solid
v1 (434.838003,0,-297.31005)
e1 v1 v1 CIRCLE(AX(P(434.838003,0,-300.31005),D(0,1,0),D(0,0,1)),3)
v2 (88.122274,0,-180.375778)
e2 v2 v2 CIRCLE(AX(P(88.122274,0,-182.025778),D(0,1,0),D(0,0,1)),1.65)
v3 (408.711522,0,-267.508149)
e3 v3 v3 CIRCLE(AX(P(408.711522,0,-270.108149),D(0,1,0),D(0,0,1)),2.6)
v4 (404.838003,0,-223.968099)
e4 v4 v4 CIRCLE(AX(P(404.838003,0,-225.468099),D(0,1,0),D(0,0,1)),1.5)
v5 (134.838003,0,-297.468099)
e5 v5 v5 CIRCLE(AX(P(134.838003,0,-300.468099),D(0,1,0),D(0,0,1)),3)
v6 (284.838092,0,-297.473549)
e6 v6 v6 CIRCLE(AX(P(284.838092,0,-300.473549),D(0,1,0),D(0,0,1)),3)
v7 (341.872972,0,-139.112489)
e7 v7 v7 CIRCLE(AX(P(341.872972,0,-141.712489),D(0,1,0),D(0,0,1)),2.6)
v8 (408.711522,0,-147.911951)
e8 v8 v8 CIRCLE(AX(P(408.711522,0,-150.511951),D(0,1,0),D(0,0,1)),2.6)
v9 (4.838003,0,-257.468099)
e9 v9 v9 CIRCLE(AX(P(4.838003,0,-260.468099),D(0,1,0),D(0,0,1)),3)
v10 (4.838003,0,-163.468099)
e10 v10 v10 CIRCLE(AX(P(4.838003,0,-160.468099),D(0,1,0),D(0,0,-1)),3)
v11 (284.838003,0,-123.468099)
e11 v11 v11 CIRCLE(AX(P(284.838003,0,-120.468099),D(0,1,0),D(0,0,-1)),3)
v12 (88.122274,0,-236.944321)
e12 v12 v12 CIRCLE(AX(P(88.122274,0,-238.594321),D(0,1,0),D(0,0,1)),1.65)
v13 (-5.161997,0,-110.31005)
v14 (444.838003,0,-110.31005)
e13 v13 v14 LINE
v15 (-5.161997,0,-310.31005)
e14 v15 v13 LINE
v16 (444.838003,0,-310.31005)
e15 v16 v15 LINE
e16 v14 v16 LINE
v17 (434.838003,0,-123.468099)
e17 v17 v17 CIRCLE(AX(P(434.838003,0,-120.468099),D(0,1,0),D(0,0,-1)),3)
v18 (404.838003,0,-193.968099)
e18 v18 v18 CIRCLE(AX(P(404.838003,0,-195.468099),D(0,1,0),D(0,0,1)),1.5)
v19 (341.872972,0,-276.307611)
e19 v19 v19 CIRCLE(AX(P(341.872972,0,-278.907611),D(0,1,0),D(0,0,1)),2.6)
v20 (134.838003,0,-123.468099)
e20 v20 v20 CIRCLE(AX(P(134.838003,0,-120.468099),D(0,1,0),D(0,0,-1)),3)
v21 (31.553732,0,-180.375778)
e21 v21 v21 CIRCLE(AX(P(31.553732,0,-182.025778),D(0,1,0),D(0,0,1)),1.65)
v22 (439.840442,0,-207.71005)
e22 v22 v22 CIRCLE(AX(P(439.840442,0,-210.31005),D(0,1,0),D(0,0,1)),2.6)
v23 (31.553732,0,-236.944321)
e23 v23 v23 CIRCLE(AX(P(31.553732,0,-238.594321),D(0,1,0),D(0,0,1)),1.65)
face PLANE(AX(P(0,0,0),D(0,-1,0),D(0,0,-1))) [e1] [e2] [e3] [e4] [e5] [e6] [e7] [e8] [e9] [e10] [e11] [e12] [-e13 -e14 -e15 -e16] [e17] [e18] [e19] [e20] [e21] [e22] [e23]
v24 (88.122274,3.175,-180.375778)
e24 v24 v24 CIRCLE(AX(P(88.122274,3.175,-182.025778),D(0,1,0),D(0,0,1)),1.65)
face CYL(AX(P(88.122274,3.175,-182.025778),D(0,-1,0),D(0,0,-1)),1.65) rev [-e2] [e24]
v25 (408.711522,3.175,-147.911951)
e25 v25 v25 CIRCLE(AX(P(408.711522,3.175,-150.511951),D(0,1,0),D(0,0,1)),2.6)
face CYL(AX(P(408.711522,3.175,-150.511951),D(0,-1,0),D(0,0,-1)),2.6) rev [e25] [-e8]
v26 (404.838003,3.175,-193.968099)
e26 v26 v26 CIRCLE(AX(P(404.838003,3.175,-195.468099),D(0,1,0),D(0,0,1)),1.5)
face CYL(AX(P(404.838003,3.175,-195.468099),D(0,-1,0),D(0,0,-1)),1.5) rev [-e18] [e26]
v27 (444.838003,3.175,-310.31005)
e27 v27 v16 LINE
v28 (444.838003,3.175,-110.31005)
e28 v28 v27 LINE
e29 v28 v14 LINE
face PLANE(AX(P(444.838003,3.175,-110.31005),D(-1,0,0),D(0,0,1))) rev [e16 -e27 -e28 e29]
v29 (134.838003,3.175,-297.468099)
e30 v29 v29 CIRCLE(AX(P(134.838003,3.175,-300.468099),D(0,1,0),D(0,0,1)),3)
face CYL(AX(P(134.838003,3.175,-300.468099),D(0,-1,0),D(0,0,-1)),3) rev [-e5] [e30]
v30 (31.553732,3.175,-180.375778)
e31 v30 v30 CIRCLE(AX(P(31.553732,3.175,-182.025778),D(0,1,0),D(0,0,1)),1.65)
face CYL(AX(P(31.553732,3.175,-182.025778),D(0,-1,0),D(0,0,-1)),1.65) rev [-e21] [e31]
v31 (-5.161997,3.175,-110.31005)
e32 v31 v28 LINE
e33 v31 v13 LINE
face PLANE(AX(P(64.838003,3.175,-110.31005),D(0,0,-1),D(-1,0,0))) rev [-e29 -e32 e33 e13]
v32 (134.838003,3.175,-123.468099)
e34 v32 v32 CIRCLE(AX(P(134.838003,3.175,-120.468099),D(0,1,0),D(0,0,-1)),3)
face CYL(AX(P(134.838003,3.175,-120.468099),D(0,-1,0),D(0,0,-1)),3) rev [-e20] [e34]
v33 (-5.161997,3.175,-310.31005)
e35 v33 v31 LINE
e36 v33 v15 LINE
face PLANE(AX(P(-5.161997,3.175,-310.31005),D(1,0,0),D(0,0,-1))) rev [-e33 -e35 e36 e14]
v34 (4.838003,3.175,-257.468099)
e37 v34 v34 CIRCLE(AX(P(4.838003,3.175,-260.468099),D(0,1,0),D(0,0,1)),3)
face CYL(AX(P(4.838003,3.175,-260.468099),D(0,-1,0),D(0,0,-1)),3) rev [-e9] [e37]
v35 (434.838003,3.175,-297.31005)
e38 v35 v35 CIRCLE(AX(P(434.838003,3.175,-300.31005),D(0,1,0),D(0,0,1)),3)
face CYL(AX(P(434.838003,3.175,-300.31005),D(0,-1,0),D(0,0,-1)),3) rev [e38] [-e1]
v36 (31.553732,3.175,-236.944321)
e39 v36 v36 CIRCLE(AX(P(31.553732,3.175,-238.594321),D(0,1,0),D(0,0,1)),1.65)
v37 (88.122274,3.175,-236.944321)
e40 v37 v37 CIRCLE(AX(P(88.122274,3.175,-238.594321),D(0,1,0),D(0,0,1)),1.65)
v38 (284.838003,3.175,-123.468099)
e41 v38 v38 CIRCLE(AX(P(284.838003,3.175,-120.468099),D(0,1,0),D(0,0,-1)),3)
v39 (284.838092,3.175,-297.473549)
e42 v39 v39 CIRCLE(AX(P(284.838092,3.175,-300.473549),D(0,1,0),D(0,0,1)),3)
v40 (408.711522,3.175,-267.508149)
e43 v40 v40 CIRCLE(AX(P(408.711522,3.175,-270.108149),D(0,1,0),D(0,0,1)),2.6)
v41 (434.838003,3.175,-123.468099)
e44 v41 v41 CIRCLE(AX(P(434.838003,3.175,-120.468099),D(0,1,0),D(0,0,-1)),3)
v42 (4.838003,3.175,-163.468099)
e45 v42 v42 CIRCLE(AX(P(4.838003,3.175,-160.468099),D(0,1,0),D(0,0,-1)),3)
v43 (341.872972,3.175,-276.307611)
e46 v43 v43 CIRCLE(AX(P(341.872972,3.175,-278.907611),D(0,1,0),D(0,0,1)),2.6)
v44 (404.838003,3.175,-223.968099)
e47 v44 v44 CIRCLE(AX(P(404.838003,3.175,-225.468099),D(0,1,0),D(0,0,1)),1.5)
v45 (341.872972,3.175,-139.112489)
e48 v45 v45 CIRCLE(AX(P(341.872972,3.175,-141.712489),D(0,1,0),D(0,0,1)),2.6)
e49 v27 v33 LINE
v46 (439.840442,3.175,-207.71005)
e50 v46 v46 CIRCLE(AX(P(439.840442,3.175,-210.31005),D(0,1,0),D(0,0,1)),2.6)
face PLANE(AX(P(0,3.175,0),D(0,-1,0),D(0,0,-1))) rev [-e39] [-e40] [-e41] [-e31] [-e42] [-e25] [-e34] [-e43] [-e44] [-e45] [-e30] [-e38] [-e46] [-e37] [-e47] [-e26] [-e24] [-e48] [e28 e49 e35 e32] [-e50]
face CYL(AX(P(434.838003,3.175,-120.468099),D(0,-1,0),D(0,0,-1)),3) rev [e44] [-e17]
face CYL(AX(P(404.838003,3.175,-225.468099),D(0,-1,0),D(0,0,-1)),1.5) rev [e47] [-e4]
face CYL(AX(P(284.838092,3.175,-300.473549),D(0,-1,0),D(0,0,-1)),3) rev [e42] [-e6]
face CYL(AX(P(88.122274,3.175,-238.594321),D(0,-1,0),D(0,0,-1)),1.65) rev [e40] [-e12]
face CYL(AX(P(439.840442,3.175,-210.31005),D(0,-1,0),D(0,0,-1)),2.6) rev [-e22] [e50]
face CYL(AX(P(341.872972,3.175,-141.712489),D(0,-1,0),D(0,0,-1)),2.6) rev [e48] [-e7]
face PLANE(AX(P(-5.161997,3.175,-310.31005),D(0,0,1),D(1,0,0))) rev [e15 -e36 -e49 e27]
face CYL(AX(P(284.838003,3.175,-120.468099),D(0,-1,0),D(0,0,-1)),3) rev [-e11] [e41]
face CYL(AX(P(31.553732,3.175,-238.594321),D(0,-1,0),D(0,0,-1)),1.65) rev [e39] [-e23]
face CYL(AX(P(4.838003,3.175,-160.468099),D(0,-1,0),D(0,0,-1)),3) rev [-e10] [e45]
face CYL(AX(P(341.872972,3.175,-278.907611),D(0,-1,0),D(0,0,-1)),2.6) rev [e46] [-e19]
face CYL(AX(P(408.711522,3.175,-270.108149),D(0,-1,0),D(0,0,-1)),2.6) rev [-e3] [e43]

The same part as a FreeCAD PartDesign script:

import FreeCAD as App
import Part
import Sketcher

doc = App.newDocument("Part")
body = doc.addObject("PartDesign::Body", "Body")

# Sketch on XZ plane
sketch1 = body.newObject("Sketcher::SketchObject", "Sketch")
sketch1.AttachmentSupport = (doc.getObject("XZ_Plane"), [""])
sketch1.MapMode = "FlatFace"
sketch1.addGeometry([
    Part.LineSegment(App.Vector(444.838003, -110.31005, 0), App.Vector(444.838003, -310.31005, 0)),  # 0
    Part.LineSegment(App.Vector(444.838003, -310.31005, 0), App.Vector(-5.161997, -310.31005, 0)),  # 1
    Part.LineSegment(App.Vector(-5.161997, -310.31005, 0), App.Vector(-5.161997, -110.31005, 0)),  # 2
    Part.LineSegment(App.Vector(-5.161997, -110.31005, 0), App.Vector(444.838003, -110.31005, 0)),  # 3
    Part.Circle(App.Vector(4.838003, -160.468099, 0), App.Vector(0, 0, 1), 3),  # 4
    Part.Circle(App.Vector(134.838003, -120.468099, 0), App.Vector(0, 0, 1), 3),  # 5
    Part.Circle(App.Vector(31.553732, -182.025778, 0), App.Vector(0, 0, 1), 1.65),  # 6
    Part.Circle(App.Vector(88.122274, -182.025778, 0), App.Vector(0, 0, 1), 1.65),  # 7
    Part.Circle(App.Vector(284.838003, -120.468099, 0), App.Vector(0, 0, 1), 3),  # 8
    Part.Circle(App.Vector(434.838003, -120.468099, 0), App.Vector(0, 0, 1), 3),  # 9
    Part.Circle(App.Vector(341.872972, -141.712489, 0), App.Vector(0, 0, 1), 2.6),  # 10
    Part.Circle(App.Vector(408.711522, -150.511951, 0), App.Vector(0, 0, 1), 2.6),  # 11
    Part.Circle(App.Vector(404.838003, -195.468099, 0), App.Vector(0, 0, 1), 1.5),  # 12
    Part.Circle(App.Vector(439.840442, -210.31005, 0), App.Vector(0, 0, 1), 2.6),  # 13
    Part.Circle(App.Vector(31.553732, -238.594321, 0), App.Vector(0, 0, 1), 1.65),  # 14
    Part.Circle(App.Vector(88.122274, -238.594321, 0), App.Vector(0, 0, 1), 1.65),  # 15
    Part.Circle(App.Vector(4.838003, -260.468099, 0), App.Vector(0, 0, 1), 3),  # 16
    Part.Circle(App.Vector(134.838003, -300.468099, 0), App.Vector(0, 0, 1), 3),  # 17
    Part.Circle(App.Vector(404.838003, -225.468099, 0), App.Vector(0, 0, 1), 1.5),  # 18
    Part.Circle(App.Vector(284.838092, -300.473549, 0), App.Vector(0, 0, 1), 3),  # 19
    Part.Circle(App.Vector(341.872972, -278.907611, 0), App.Vector(0, 0, 1), 2.6),  # 20
    Part.Circle(App.Vector(408.711522, -270.108149, 0), App.Vector(0, 0, 1), 2.6),  # 21
    Part.Circle(App.Vector(434.838003, -300.31005, 0), App.Vector(0, 0, 1), 3),  # 22
], False)
sketch1.addConstraint([
    Sketcher.Constraint("Coincident", 0, 2, 1, 1),
    Sketcher.Constraint("Coincident", 1, 2, 2, 1),
    Sketcher.Constraint("Coincident", 2, 2, 3, 1),
    Sketcher.Constraint("Coincident", 3, 2, 0, 1),
    Sketcher.Constraint("Vertical", 0),
    Sketcher.Constraint("Horizontal", 1),
    Sketcher.Constraint("Vertical", 2),
    Sketcher.Constraint("Horizontal", 3),
    Sketcher.Constraint("Equal", 4, 5),
    Sketcher.Constraint("Equal", 6, 7),
    Sketcher.Constraint("Equal", 5, 8),
    Sketcher.Constraint("Equal", 8, 9),
    Sketcher.Constraint("Equal", 10, 11),
    Sketcher.Constraint("Equal", 11, 13),
    Sketcher.Constraint("Equal", 7, 14),
    Sketcher.Constraint("Equal", 14, 15),
    Sketcher.Constraint("Equal", 9, 16),
    Sketcher.Constraint("Equal", 16, 17),
    Sketcher.Constraint("Equal", 12, 18),
    Sketcher.Constraint("Equal", 17, 19),
    Sketcher.Constraint("Equal", 13, 20),
    Sketcher.Constraint("Equal", 20, 21),
    Sketcher.Constraint("Equal", 19, 22),
    Sketcher.Constraint("Horizontal", 6, 3, 7, 3),
    Sketcher.Constraint("Horizontal", 5, 3, 8, 3),
    Sketcher.Constraint("Horizontal", 8, 3, 9, 3),
    Sketcher.Constraint("Horizontal", 14, 3, 15, 3),
    Sketcher.Constraint("Vertical", 6, 3, 14, 3),
    Sketcher.Constraint("Vertical", 7, 3, 15, 3),
    Sketcher.Constraint("Vertical", 4, 3, 16, 3),
    Sketcher.Constraint("Vertical", 5, 3, 17, 3),
    Sketcher.Constraint("Vertical", 12, 3, 18, 3),
    Sketcher.Constraint("Vertical", 10, 3, 20, 3),
    Sketcher.Constraint("Vertical", 11, 3, 21, 3),
    Sketcher.Constraint("Vertical", 9, 3, 22, 3),
    Sketcher.Constraint("Diameter", 4, 6.0),
    Sketcher.Constraint("Diameter", 12, 3.0),
    Sketcher.Constraint("Diameter", 6, 3.3),
    Sketcher.Constraint("Diameter", 10, 5.2),
    Sketcher.Constraint("DistanceX", 1, 2, 1, 1, 450.0),
    Sketcher.Constraint("DistanceY", 0, 2, 0, 1, 200.0),
    Sketcher.Constraint("DistanceX", 4, 3, 5, 3, 130.0),
    Sketcher.Constraint("DistanceY", 4, 3, 5, 3, 40.0),
    Sketcher.Constraint("DistanceX", 5, 3, 8, 3, 150.0),
    Sketcher.Constraint("DistanceX", 8, 3, 9, 3, 150.0),
    Sketcher.Constraint("DistanceX", 12, 3, 9, 3, 30.0),
    Sketcher.Constraint("DistanceY", 12, 3, 9, 3, 75.0),
    Sketcher.Constraint("DistanceY", 16, 3, 4, 3, 100.0),
    Sketcher.Constraint("DistanceY", 17, 3, 16, 3, 40.0),
    Sketcher.Constraint("DistanceY", 18, 3, 12, 3, 30.0),
    Sketcher.Constraint("DistanceY", 22, 3, 13, 3, 90.0),
    Sketcher.Constraint("DistanceX", 22, 3, 0, 2, 10.0),
    Sketcher.Constraint("DistanceY", 0, 2, 22, 3, 10.0),
    Sketcher.Constraint("DistanceY", 4, 3, -1, 1, 160.468099),
    Sketcher.Constraint("DistanceY", 13, 3, 11, 3, 59.798099),
    Sketcher.Constraint("DistanceY", 19, 3, 13, 3, 90.163499),
    Sketcher.Constraint("DistanceY", 21, 3, 13, 3, 59.798099),
    Sketcher.Constraint("DistanceX", -1, 1, 6, 3, 31.553732),
    Sketcher.Constraint("DistanceY", 6, 3, -1, 1, 182.025778),
    Sketcher.Constraint("DistanceX", -1, 1, 10, 3, 341.872972),
    Sketcher.Constraint("DistanceY", 10, 3, -1, 1, 141.712489),
    Sketcher.Constraint("DistanceX", -1, 1, 11, 3, 408.711522),
    Sketcher.Constraint("DistanceY", 11, 3, -1, 1, 150.511951),
    Sketcher.Constraint("DistanceY", 14, 3, -1, 1, 238.594321),
    Sketcher.Constraint("DistanceY", 20, 3, -1, 1, 278.907611),
    Sketcher.Constraint("DistanceX", 4, 3, 6, 3, 26.715729),
    Sketcher.Constraint("DistanceX", 7, 3, 5, 3, 46.715729),
    Sketcher.Constraint("DistanceX", 12, 3, 13, 3, 35.002439),
    Sketcher.Constraint("DistanceX", 19, 3, 18, 3, 119.999911),
])
pad1 = body.newObject("PartDesign::Pad", "Pad")
pad1.Profile = sketch1
pad1.Length = 3.175
pad1.Reversed = True

doc.recompute()
